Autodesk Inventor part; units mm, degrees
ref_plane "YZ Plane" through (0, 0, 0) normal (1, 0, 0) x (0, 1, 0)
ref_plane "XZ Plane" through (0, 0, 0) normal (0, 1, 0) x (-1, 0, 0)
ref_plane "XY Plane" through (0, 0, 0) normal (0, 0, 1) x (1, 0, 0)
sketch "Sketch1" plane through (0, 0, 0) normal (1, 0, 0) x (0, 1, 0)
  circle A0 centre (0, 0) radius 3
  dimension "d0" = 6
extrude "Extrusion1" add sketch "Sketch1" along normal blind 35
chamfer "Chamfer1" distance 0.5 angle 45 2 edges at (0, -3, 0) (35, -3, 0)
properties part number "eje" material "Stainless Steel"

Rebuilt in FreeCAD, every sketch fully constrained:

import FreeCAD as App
import Part
import Sketcher
from FreeCAD import Vector
Q = App.Units.Quantity


def edges_at(feature, points):
    """Names of the edges that pass closest to the given points."""
    edges = feature.Shape.Edges
    near = lambda p: min(range(len(edges)), key=lambda i: edges[i].distToShape(Part.Vertex(*p))[0])
    return sorted({f"Edge{near(p) + 1}" for p in points})

doc = App.newDocument("Part")
body = doc.addObject("PartDesign::Body", "Body")

sketch1 = body.newObject("Sketcher::SketchObject", "Sketch")
sketch1.AttachmentSupport = (doc.getObject("YZ_Plane"), [""])
sketch1.MapMode = "FlatFace"
sketch1.addGeometry(Part.Circle(Vector(0, 0, 0), Vector(0, 0, 1), 3), False)
sketch1.addConstraint(Sketcher.Constraint("Coincident", 0, 3, -1, 1))
sketch1.addConstraint(Sketcher.Constraint("Diameter", 0, Q("6 mm")))
pad1 = body.newObject("PartDesign::Pad", "Pad")
pad1.Profile = sketch1
pad1.Length = 35
doc.recompute()

chamfer = body.newObject("PartDesign::Chamfer", "Chamfer")
chamfer.Base = (pad1, edges_at(pad1, [(0, -3, 0), (35, -3, 0)]))
chamfer.Size = 0.5

doc.recompute()
